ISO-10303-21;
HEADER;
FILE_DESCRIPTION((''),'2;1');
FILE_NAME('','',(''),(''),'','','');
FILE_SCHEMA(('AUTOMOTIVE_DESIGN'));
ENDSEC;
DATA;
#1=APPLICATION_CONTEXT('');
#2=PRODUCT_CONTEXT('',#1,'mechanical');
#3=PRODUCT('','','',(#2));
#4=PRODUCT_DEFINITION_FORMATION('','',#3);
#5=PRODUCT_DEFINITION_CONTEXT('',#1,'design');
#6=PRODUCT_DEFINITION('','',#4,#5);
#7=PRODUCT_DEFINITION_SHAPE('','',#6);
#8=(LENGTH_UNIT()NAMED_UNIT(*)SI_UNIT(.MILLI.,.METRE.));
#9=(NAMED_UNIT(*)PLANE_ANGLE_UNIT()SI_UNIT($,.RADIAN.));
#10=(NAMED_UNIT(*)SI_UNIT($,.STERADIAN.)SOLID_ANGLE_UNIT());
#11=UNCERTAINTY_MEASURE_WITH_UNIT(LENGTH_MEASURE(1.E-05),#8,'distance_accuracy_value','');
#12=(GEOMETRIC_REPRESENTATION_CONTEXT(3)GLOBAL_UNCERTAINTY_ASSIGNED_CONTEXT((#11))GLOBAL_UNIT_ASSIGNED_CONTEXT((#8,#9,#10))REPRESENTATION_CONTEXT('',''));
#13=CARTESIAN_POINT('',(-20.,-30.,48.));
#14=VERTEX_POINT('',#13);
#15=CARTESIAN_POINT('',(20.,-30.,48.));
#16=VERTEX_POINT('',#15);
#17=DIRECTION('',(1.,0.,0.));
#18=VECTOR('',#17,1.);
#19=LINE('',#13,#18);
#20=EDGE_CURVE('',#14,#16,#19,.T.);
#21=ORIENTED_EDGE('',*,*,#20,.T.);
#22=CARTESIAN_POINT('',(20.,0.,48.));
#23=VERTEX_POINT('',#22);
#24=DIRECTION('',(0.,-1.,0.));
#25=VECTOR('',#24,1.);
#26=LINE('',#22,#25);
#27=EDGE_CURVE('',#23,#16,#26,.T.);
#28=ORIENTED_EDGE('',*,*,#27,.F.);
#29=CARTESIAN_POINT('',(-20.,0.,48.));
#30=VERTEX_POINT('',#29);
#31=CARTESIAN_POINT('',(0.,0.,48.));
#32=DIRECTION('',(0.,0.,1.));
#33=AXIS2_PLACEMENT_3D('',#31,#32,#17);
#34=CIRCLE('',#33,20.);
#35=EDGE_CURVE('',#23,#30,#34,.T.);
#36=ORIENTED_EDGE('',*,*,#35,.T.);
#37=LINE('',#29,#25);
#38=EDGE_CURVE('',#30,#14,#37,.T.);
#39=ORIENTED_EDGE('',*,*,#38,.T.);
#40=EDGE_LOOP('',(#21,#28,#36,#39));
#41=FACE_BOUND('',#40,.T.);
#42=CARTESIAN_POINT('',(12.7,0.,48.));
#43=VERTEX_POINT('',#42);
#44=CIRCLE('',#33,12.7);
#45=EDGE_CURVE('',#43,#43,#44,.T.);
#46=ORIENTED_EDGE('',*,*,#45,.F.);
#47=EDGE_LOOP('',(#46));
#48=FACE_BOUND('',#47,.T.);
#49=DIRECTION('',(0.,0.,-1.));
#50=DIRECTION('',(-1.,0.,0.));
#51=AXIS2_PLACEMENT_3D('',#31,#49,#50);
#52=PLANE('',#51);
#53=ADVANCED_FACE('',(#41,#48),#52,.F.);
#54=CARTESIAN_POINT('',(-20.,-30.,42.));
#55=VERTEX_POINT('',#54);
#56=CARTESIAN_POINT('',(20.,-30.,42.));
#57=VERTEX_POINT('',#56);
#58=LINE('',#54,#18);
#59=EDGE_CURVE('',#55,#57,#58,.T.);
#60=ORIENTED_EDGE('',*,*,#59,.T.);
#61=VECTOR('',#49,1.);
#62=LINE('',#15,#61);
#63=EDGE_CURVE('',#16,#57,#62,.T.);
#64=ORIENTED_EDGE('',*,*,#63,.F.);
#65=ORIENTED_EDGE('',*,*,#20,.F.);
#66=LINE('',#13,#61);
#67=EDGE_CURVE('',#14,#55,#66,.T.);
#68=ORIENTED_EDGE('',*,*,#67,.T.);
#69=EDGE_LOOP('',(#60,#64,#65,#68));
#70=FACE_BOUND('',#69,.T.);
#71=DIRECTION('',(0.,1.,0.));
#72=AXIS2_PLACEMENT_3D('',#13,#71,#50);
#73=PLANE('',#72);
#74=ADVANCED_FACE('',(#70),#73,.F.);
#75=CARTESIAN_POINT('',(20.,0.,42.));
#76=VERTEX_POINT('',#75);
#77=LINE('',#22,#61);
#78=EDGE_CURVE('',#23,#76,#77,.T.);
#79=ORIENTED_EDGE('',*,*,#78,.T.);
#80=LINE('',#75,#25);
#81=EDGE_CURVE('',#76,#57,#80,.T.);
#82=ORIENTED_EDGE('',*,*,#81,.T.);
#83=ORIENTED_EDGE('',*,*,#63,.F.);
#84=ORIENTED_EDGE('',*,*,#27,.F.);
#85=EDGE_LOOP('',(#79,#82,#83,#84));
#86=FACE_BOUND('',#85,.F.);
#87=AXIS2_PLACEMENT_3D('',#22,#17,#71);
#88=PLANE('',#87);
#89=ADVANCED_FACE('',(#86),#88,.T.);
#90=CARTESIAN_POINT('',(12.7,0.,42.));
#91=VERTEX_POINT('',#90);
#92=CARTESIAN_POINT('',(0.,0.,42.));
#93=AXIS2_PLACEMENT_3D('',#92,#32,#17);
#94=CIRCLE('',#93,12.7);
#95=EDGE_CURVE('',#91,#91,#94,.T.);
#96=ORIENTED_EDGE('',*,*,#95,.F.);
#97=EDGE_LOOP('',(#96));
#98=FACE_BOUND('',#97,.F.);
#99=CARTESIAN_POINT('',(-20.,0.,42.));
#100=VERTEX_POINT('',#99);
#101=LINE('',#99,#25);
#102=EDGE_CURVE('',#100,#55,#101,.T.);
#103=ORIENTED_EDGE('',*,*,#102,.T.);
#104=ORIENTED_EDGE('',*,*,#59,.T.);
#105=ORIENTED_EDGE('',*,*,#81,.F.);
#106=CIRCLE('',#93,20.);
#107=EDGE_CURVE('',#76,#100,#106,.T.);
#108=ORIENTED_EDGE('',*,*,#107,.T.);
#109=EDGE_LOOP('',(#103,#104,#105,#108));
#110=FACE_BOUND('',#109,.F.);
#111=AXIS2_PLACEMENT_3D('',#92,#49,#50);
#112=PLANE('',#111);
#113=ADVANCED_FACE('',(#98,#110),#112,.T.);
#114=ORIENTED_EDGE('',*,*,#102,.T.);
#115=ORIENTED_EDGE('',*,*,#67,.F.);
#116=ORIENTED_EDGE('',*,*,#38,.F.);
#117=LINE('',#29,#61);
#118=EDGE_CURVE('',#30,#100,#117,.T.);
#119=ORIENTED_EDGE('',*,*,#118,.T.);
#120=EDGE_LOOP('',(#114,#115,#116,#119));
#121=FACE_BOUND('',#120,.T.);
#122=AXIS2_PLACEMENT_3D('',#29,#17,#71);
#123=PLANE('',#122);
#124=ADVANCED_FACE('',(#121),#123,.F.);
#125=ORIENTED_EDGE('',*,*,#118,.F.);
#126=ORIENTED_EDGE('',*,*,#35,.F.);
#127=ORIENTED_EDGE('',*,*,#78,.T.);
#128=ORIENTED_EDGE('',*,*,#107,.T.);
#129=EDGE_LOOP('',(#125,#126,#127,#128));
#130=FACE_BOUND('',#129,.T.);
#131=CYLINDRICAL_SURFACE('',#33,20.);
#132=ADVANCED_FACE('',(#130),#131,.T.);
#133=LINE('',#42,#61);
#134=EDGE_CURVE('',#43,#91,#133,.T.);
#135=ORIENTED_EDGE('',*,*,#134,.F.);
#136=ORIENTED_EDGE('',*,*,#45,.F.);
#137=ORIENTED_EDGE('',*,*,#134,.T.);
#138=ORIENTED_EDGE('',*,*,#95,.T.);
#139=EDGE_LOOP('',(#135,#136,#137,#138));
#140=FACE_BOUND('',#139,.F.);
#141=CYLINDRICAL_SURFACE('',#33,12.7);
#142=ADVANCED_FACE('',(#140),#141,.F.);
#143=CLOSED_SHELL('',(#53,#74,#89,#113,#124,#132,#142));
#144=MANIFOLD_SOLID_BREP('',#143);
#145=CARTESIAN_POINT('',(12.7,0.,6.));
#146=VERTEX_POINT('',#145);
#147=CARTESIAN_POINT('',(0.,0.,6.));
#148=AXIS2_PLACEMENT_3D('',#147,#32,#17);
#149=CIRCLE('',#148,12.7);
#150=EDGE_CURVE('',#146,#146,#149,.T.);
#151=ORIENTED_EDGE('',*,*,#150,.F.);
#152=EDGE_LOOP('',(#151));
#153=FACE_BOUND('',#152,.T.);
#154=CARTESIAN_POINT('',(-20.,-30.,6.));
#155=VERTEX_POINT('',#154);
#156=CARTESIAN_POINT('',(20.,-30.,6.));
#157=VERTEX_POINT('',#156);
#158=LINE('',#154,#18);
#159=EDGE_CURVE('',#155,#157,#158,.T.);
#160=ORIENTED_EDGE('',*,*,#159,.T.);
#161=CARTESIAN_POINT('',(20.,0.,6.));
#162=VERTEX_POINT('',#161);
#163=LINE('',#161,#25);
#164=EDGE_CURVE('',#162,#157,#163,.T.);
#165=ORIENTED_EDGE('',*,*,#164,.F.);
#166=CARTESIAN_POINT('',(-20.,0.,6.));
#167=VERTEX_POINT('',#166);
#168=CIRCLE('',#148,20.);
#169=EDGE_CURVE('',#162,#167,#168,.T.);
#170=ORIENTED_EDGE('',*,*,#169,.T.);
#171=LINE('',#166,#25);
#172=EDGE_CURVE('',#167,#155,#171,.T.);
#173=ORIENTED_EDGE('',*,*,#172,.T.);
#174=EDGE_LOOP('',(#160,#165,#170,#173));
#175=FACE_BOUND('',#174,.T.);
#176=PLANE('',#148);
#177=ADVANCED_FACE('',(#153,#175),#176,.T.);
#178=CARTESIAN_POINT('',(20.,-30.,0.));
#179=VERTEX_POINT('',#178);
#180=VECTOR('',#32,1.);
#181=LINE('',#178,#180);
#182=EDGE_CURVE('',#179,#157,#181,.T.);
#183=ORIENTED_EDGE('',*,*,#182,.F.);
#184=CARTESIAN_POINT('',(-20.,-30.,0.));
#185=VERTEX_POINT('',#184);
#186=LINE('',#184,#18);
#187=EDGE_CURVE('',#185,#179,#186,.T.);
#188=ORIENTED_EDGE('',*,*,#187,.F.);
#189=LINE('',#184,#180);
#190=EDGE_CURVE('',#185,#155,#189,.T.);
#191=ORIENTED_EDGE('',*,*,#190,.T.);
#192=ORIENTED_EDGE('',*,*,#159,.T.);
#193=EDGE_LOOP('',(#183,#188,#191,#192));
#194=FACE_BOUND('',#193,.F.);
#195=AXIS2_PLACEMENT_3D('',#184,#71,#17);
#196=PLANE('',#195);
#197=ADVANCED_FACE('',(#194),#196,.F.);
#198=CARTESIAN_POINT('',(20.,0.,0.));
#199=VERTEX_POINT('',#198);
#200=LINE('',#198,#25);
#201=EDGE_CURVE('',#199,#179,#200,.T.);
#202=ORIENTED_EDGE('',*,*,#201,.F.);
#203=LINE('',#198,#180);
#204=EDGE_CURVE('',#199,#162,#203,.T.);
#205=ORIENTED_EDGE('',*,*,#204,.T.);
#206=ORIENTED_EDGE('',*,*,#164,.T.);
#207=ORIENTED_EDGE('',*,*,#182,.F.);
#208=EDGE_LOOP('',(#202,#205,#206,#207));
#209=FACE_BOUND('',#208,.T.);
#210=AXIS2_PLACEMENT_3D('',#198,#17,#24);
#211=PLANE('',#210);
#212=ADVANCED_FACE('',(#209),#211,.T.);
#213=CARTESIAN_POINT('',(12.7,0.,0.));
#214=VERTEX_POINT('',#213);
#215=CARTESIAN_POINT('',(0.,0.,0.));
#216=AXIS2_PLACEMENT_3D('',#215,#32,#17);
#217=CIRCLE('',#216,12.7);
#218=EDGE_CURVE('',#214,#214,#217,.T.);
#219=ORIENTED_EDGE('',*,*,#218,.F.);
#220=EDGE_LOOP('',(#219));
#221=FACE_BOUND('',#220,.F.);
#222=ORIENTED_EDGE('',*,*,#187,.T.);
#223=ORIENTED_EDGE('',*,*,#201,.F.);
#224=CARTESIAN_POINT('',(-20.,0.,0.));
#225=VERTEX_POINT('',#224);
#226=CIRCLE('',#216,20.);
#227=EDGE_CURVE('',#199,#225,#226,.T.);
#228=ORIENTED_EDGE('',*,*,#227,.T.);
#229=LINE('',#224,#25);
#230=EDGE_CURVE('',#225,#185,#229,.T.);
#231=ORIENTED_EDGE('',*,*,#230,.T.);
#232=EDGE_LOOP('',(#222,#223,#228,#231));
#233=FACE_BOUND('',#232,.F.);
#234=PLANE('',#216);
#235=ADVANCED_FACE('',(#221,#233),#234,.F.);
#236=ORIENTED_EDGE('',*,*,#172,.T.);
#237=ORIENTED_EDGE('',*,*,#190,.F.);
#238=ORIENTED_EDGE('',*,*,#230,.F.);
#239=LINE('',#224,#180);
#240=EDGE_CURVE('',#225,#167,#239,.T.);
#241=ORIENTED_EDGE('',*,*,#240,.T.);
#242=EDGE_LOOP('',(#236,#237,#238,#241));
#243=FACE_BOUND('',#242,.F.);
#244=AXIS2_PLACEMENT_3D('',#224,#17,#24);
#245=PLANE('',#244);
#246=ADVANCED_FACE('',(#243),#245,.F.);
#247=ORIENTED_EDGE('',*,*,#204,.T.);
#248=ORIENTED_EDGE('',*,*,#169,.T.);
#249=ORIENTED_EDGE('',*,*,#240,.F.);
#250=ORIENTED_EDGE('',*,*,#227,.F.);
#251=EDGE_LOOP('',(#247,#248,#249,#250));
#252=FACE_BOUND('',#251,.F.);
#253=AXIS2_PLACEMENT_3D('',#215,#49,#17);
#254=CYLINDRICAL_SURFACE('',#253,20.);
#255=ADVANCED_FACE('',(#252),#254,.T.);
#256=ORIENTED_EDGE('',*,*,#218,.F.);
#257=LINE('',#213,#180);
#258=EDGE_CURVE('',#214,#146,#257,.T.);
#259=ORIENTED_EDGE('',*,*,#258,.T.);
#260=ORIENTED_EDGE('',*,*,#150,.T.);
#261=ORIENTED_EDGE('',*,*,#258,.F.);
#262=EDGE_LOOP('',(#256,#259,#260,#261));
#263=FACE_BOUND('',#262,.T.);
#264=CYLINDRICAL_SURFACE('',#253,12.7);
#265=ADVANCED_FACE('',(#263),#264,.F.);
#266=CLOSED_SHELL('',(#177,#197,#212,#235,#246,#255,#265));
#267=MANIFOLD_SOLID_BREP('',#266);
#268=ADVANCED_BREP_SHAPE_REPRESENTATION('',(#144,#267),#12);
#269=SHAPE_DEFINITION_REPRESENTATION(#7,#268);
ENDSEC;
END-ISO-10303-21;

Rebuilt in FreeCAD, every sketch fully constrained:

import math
import FreeCAD as App
import Part
import Sketcher
Q = App.Units.Quantity

doc = App.newDocument("Part")
body = doc.addObject("PartDesign::Body", "Body")
body.AllowCompound = True

# Sketch on XY plane
sketch1 = body.newObject("Sketcher::SketchObject", "Sketch")
sketch1.AttachmentSupport = (doc.getObject("XY_Plane"), [""])
sketch1.MapMode = "FlatFace"
sketch1.addGeometry([
    Part.LineSegment(App.Vector(20, -30, 0), App.Vector(20, 0, 0)),  # 0
    Part.ArcOfCircle(Part.Circle(App.Vector(0, 0, 0), App.Vector(0, 0, 1), 20), math.radians(0), math.radians(180)),  # 1
    Part.LineSegment(App.Vector(-20, 0, 0), App.Vector(-20, -30, 0)),  # 2
    Part.LineSegment(App.Vector(-20, -30, 0), App.Vector(20, -30, 0)),  # 3
    Part.Circle(App.Vector(0, 0, 0), App.Vector(0, 0, 1), 13),  # 4
], False)
sketch1.addConstraint([
    Sketcher.Constraint("Tangent", 0, 2, 1, 1),
    Sketcher.Constraint("Tangent", 1, 2, 2, 1),
    Sketcher.Constraint("Coincident", 2, 2, 3, 1),
    Sketcher.Constraint("Coincident", 3, 2, 0, 1),
    Sketcher.Constraint("Vertical", 0),
    Sketcher.Constraint("Vertical", 2),
    Sketcher.Constraint("Horizontal", 3),
    Sketcher.Constraint("Coincident", 1, 3, -1, 1),
    Sketcher.Constraint("Coincident", 4, 3, -1, 1),
    Sketcher.Constraint("Radius", 1, Q("20 mm")),
    Sketcher.Constraint("Diameter", 4, Q("25.4 mm")),
    Sketcher.Constraint("DistanceY", 0, 1, 0, 2, Q("30 mm")),
])
pad1 = body.newObject("PartDesign::Pad", "Pad")
pad1.Profile = sketch1
pad1.Length = 6
doc.recompute()

datumplane = body.newObject("PartDesign::Plane", "DatumPlane")
datumplane.AttachmentSupport = (doc.getObject("XY_Plane"), [""])
datumplane.MapMode = "FlatFace"
datumplane.AttachmentOffset = App.Placement(App.Vector(0, 0, 24), App.Rotation())
mirrored = body.newObject("PartDesign::Mirrored", "Mirrored")
mirrored.Originals = [pad1]
mirrored.MirrorPlane = (datumplane, [""])
body.Tip = mirrored

doc.recompute()
